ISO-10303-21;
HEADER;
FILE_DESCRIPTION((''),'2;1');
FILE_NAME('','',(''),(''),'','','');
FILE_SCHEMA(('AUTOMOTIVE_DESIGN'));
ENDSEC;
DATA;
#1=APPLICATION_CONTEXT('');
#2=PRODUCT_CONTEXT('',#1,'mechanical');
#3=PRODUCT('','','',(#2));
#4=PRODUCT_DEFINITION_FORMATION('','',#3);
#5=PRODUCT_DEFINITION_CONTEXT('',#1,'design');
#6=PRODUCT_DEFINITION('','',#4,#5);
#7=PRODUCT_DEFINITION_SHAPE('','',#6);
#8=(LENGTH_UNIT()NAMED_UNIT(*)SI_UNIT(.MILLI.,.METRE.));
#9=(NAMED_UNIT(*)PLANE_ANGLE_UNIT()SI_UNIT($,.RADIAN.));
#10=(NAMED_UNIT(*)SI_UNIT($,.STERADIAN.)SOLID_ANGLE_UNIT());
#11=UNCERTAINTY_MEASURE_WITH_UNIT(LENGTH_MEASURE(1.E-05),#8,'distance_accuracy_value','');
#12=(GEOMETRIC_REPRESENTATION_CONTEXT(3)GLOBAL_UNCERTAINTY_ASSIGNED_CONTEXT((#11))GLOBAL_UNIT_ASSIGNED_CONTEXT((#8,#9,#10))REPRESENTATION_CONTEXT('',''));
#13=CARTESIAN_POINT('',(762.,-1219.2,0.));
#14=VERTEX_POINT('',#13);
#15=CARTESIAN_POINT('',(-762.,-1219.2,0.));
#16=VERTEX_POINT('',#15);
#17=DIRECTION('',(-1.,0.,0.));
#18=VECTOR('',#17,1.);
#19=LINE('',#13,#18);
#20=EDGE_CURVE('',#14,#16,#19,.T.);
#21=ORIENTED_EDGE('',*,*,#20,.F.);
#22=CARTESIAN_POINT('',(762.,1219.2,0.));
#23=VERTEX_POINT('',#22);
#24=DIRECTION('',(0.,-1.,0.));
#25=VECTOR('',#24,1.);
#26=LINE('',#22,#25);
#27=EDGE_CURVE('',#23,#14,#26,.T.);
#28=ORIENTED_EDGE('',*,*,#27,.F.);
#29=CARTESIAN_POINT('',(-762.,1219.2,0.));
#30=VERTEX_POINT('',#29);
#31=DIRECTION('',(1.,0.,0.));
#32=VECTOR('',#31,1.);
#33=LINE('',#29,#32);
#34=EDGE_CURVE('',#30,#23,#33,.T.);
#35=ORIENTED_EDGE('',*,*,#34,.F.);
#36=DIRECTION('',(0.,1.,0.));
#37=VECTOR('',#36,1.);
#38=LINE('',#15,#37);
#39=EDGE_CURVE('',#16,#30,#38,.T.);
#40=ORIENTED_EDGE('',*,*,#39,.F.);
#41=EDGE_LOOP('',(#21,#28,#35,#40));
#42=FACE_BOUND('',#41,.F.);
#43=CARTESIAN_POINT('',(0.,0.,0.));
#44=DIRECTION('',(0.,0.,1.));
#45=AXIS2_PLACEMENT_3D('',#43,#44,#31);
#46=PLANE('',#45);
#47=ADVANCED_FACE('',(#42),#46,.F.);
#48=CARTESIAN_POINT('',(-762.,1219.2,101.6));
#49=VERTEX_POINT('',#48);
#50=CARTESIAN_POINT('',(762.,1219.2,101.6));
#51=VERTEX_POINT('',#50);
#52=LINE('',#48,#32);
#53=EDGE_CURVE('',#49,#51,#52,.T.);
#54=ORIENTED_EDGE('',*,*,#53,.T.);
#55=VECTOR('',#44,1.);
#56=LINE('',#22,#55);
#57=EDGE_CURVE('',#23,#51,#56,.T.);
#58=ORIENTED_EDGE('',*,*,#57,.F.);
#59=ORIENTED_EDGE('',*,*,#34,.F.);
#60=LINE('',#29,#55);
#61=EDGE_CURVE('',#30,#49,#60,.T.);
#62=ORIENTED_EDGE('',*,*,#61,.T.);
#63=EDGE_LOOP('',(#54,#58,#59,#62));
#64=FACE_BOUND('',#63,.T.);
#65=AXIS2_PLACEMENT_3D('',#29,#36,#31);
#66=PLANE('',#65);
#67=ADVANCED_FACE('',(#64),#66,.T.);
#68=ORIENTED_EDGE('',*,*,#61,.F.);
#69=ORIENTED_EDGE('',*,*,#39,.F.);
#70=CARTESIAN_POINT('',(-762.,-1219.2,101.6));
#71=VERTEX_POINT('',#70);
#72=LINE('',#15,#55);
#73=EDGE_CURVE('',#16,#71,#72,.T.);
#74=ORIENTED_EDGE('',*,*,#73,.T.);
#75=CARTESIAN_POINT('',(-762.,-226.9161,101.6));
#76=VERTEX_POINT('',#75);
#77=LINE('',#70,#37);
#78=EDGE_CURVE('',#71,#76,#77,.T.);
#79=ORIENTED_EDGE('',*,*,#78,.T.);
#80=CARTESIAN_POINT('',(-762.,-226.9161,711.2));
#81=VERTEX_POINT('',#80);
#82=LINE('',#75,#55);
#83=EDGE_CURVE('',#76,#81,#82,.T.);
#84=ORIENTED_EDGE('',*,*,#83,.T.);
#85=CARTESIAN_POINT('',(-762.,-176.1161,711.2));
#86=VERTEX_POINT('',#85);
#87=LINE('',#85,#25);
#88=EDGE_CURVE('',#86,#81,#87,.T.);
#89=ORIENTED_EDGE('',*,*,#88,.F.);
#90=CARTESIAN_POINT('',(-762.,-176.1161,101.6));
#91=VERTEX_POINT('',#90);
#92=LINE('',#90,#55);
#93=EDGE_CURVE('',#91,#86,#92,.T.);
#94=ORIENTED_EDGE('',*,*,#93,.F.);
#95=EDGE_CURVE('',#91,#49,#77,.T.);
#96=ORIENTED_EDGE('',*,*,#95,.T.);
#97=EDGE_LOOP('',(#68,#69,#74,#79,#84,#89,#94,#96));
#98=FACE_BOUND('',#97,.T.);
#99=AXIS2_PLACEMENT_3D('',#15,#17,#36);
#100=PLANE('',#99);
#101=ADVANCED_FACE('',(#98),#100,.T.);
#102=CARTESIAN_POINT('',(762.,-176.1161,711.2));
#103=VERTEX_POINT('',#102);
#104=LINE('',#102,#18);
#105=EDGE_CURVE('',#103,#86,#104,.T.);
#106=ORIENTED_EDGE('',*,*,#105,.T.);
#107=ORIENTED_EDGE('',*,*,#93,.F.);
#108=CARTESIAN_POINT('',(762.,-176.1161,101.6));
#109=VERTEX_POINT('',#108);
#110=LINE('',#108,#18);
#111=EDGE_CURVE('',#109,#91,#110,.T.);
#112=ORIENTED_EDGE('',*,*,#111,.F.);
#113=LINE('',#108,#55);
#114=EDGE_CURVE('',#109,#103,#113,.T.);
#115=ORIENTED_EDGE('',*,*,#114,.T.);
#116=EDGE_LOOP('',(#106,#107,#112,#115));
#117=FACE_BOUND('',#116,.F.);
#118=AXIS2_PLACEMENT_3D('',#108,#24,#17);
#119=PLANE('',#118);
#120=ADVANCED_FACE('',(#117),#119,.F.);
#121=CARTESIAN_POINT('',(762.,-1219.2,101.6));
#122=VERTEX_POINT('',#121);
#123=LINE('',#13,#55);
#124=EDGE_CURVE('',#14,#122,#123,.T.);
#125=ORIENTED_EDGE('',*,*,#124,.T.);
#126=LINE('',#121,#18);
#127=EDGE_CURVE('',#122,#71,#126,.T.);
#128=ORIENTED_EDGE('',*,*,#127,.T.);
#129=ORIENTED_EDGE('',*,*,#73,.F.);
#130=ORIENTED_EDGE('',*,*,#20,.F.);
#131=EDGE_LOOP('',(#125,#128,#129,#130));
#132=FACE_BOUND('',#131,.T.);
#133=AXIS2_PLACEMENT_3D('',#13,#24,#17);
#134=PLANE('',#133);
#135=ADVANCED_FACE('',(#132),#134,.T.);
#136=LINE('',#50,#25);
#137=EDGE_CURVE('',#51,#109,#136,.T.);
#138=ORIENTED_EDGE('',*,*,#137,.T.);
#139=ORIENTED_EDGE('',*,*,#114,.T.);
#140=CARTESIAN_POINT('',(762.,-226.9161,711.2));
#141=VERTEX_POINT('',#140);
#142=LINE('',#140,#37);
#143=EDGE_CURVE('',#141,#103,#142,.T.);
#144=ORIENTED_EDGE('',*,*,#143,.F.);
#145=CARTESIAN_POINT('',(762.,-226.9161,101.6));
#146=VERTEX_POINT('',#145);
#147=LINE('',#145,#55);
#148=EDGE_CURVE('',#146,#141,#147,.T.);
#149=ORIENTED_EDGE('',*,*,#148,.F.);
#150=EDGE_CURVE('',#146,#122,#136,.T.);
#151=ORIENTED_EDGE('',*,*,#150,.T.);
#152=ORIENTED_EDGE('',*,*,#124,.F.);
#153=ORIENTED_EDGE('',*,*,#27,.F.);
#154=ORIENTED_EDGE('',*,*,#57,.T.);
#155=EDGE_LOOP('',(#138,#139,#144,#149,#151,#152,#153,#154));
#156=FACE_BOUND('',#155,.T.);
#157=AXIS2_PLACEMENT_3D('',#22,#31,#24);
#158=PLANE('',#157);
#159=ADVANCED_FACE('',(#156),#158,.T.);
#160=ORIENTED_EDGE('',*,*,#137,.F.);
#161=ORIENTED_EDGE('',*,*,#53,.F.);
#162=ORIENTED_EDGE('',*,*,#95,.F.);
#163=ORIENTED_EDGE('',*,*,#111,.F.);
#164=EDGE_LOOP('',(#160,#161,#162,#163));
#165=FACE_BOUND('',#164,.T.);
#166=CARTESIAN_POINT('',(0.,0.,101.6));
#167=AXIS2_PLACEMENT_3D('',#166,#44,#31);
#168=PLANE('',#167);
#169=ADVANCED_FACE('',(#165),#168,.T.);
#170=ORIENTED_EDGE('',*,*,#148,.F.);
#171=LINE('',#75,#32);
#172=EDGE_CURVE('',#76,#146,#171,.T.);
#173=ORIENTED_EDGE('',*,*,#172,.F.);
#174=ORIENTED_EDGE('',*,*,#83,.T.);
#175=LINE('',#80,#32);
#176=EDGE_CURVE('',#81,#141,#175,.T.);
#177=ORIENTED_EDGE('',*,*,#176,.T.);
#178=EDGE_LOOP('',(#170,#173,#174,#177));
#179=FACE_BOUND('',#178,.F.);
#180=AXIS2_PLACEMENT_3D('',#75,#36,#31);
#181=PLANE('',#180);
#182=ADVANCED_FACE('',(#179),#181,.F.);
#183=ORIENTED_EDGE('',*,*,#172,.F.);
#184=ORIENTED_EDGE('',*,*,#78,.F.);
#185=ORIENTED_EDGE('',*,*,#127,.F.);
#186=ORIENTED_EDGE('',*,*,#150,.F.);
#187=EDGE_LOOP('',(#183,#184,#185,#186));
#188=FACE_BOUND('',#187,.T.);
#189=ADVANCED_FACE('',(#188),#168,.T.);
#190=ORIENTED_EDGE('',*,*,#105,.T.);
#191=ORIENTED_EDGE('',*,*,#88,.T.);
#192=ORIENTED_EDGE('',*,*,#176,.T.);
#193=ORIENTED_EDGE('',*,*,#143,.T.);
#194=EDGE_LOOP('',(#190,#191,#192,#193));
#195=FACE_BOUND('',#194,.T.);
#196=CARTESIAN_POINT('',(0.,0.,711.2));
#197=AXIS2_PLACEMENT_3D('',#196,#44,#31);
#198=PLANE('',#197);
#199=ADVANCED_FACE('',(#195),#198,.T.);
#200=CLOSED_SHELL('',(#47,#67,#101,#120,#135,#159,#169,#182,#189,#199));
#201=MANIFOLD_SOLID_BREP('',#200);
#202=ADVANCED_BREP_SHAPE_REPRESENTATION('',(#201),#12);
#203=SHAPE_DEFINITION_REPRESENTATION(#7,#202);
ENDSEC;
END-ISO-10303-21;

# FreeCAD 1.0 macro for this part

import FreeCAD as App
import Part
import Sketcher
from FreeCAD import Vector
Q = App.Units.Quantity

doc = App.newDocument("Part")
body = doc.addObject("PartDesign::Body", "Body")

# Sketch on XY plane
sketch1 = doc.addObject("Sketcher::SketchObject", "Sketch")
body.addObject(sketch1)
sketch1.AttachmentSupport = (doc.XY_Plane, [""])
sketch1.MapMode = "FlatFace"
sketch1.addGeometry([
    Part.LineSegment(Vector(-762, -1219, 0), Vector(762, -1219, 0)),
    Part.LineSegment(Vector(762, -1219, 0), Vector(762, 1219, 0)),
    Part.LineSegment(Vector(762, 1219, 0), Vector(-762, 1219, 0)),
    Part.LineSegment(Vector(-762, 1219, 0), Vector(-762, -1219, 0)),
], False)
sketch1.addConstraint([
    Sketcher.Constraint("Coincident", 0, 2, 1, 1),
    Sketcher.Constraint("Coincident", 1, 2, 2, 1),
    Sketcher.Constraint("Coincident", 2, 2, 3, 1),
    Sketcher.Constraint("Coincident", 3, 2, 0, 1),
    Sketcher.Constraint("Horizontal", 0),
    Sketcher.Constraint("Vertical", 1),
    Sketcher.Constraint("Horizontal", 2),
    Sketcher.Constraint("Vertical", 3),
    Sketcher.Constraint("Symmetric", 0, 2, 2, 2, -1, 1),
    Sketcher.Constraint("DistanceX", 0, 1, 0, 2, Q("60 in")),
    Sketcher.Constraint("DistanceY", 1, 1, 1, 2, Q("96 in")),
])
pad1 = doc.addObject("PartDesign::Pad", "Pad")
body.addObject(pad1)
pad1.Profile = sketch1
pad1.Length = Q("4 in")

# Sketch on XY plane
sketch2 = doc.addObject("Sketcher::SketchObject", "Sketch001")
body.addObject(sketch2)
sketch2.AttachmentSupport = (doc.XY_Plane, [""])
sketch2.MapMode = "FlatFace"
sketch2.AttachmentOffset = App.Placement(Vector(0, 0, 4 * 25.4), App.Rotation())
sketch2.addGeometry([
    Part.LineSegment(Vector(-762, -176, 0), Vector(-762, -227, 0)),
    Part.LineSegment(Vector(-762, -227, 0), Vector(762, -227, 0)),
    Part.LineSegment(Vector(762, -227, 0), Vector(762, -176, 0)),
    Part.LineSegment(Vector(762, -176, 0), Vector(-762, -176, 0)),
], False)
sketch2.addConstraint([
    Sketcher.Constraint("Coincident", 0, 2, 1, 1),
    Sketcher.Constraint("Coincident", 1, 2, 2, 1),
    Sketcher.Constraint("Coincident", 2, 2, 3, 1),
    Sketcher.Constraint("Coincident", 3, 2, 0, 1),
    Sketcher.Constraint("Vertical", 0),
    Sketcher.Constraint("Horizontal", 1),
    Sketcher.Constraint("Vertical", 2),
    Sketcher.Constraint("Horizontal", 3),
    Sketcher.Constraint("DistanceX", 1, 1, 1, 2, Q("60 in")),
    Sketcher.Constraint("DistanceY", 0, 2, 0, 1, Q("2 in")),
    Sketcher.Constraint("DistanceX", 0, 2, -1, 1, Q("30 in")),
    Sketcher.Constraint("DistanceY", 0, 2, -1, 1, Q("8.9337 in")),
])
pad2 = doc.addObject("PartDesign::Pad", "Pad001")
body.addObject(pad2)
pad2.Profile = sketch2
pad2.Length = Q("24 in")

doc.recompute()
